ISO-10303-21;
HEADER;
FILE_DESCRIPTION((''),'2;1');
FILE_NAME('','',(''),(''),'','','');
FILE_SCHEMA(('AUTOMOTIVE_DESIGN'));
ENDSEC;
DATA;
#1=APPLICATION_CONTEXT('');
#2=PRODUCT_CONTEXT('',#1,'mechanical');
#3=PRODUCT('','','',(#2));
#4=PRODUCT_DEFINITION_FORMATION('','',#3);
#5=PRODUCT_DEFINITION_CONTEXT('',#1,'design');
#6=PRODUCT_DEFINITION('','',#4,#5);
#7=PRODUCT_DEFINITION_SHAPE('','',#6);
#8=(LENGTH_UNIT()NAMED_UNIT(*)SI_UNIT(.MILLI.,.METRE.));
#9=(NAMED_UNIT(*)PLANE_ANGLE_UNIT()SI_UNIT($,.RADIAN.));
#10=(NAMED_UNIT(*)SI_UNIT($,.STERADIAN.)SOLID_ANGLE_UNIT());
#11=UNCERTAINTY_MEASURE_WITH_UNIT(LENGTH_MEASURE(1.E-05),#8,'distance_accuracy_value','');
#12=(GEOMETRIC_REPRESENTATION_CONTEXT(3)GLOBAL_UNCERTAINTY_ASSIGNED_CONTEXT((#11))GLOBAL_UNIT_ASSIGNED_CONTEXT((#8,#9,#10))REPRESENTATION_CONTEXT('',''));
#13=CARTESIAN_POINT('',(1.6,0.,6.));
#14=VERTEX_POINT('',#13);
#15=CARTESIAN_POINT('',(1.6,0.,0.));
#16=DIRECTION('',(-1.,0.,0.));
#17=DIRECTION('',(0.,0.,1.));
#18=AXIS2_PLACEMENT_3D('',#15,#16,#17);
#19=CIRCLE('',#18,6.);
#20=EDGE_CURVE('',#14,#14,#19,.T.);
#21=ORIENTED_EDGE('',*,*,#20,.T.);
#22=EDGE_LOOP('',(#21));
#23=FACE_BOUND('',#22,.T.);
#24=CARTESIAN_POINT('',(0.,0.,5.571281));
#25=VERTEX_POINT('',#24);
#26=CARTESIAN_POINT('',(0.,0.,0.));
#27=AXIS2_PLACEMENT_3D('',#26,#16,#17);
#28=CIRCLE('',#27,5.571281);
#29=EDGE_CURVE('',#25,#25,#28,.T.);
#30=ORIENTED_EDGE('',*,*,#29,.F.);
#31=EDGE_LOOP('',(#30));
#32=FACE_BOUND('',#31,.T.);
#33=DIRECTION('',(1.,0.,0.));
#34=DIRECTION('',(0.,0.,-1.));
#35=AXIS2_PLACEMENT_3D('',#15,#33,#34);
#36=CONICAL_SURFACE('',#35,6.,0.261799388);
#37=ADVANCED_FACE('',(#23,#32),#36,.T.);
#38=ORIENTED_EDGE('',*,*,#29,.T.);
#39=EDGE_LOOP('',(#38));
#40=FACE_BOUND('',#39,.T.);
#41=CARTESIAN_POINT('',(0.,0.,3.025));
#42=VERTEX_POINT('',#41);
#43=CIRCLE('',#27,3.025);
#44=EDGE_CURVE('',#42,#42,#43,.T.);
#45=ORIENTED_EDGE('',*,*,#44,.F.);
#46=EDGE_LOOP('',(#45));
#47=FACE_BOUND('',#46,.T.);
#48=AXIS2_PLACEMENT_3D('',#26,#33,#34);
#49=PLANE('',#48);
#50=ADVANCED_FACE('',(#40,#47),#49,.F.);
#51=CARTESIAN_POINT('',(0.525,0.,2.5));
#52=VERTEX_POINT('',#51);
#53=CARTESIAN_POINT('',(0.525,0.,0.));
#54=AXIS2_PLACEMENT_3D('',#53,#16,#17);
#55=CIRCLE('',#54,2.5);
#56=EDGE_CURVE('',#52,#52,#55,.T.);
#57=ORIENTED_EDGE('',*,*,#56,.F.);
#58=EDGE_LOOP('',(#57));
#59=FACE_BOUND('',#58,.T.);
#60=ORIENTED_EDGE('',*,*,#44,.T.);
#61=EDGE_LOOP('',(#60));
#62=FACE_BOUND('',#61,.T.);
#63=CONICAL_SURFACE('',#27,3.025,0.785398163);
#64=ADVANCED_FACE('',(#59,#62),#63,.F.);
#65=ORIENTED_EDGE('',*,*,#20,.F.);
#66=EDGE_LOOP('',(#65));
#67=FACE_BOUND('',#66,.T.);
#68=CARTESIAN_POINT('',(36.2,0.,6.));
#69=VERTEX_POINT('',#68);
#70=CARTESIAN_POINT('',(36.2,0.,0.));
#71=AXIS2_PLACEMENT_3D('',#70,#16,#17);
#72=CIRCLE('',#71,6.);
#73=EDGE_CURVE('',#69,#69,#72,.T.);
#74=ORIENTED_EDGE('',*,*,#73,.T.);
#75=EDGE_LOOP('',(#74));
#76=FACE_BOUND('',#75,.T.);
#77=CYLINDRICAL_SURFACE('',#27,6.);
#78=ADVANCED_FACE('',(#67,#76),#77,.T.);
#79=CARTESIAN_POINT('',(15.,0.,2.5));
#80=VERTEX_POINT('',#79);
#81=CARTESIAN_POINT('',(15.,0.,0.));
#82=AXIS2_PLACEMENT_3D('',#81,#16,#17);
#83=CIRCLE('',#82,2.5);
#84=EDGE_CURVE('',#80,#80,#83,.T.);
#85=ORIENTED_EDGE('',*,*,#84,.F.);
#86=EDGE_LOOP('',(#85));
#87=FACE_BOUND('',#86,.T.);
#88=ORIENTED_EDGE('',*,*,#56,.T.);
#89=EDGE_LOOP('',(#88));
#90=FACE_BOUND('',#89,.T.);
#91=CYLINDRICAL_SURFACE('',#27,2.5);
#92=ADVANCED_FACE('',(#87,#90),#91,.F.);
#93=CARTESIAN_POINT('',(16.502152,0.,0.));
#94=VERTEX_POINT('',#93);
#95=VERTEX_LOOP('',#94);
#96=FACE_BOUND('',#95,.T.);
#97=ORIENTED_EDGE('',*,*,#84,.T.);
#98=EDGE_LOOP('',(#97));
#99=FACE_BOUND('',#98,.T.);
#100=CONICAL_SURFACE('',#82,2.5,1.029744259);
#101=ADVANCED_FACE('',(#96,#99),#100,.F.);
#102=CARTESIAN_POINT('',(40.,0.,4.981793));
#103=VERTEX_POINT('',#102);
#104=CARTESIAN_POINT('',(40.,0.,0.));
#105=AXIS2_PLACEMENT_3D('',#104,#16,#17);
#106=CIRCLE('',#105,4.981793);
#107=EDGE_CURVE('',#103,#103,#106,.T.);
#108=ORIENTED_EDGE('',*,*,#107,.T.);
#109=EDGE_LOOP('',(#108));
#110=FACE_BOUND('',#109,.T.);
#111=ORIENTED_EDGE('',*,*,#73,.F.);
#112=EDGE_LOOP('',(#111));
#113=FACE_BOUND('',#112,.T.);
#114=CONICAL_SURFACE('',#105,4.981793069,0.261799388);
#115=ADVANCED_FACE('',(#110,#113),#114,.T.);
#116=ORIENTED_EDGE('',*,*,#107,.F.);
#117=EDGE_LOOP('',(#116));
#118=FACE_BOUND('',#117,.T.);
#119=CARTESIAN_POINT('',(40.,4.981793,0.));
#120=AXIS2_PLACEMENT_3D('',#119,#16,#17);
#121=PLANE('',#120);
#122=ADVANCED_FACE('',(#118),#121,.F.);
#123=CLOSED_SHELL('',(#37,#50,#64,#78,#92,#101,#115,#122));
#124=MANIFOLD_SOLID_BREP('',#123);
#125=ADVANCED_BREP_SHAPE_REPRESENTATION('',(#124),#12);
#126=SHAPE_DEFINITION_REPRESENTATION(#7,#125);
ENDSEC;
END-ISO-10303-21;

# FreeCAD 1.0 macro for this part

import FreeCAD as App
import Part
import Sketcher
from FreeCAD import Vector
Q = App.Units.Quantity


def add_polygon(sketch, points):
    """Adds a closed chain of lines whose ends are joined by coincident constraints."""
    first, n = sketch.GeometryCount, len(points)
    for a, b in zip(points, points[1:] + points[:1]):
        sketch.addGeometry(Part.LineSegment(App.Vector(*a, 0), App.Vector(*b, 0)), False)
    for i in range(n):
        sketch.addConstraint(Sketcher.Constraint("Coincident", first + i, 2, first + (i + 1) % n, 1))

doc = App.newDocument("Part")
body = doc.addObject("PartDesign::Body", "Body")

# Sketch on XY plane
sketch1 = doc.addObject("Sketcher::SketchObject", "Sketch")
body.addObject(sketch1)
sketch1.AttachmentSupport = (doc.XY_Plane, [""])
sketch1.MapMode = "FlatFace"
add_polygon(sketch1, [(0, 5.6), (0, 0), (40, 0), (40, 5), (36.2, 6), (1.6, 6)])  # lines 0-5
sketch1.addConstraint([
    Sketcher.Constraint("Vertical", 0),
    Sketcher.Constraint("Horizontal", 1),
    Sketcher.Constraint("Vertical", 2),
    Sketcher.Constraint("Horizontal", 4),
    Sketcher.Constraint("Coincident", 0, 2, -1, 1),
    Sketcher.Constraint("DistanceX", 1, 1, 1, 2, 40.0),
    Sketcher.Constraint("Angle", 3, Q("165 deg")),
    Sketcher.Constraint("Angle", 5, Q("-165 deg")),
    Sketcher.Constraint("DistanceX", 4, 2, 4, 1, 34.6),
    Sketcher.Constraint("DistanceY", -1, 1, 3, 2, 6.0),
    Sketcher.Constraint("DistanceX", -1, 1, 3, 2, 36.2),
])
revolution = doc.addObject("PartDesign::Revolution", "Revolution")
body.addObject(revolution)
revolution.Profile = sketch1
revolution.ReferenceAxis = (sketch1, ["H_Axis"])
revolution.Angle = 360

# Sketch on YZ plane
sketch2 = doc.addObject("Sketcher::SketchObject", "Sketch001")
body.addObject(sketch2)
sketch2.AttachmentSupport = (doc.YZ_Plane, [""])
sketch2.MapMode = "FlatFace"
sketch2.addGeometry(Part.Circle(Vector(0, 0, 0), Vector(0, 0, 1), 2.5), False)
sketch2.addConstraint([
    Sketcher.Constraint("Coincident", 0, 3, -1, 1),
    Sketcher.Constraint("Diameter", 0, 5.0),
])
doc.recompute()
hole = doc.addObject("PartDesign::Hole", "Hole")
body.addObject(hole)
hole.Profile = sketch2
hole.ThreadType = "None"
hole.Diameter = 5
hole.DepthType = "Dimension"
hole.Depth = 15
hole.DrillPoint = "Angled"
hole.DrillPointAngle = 118
hole.HoleCutType = "Countersink"
hole.HoleCutDiameter = 6.05
hole.HoleCutCountersinkAngle = 90
hole.Reversed = True

doc.recompute()
